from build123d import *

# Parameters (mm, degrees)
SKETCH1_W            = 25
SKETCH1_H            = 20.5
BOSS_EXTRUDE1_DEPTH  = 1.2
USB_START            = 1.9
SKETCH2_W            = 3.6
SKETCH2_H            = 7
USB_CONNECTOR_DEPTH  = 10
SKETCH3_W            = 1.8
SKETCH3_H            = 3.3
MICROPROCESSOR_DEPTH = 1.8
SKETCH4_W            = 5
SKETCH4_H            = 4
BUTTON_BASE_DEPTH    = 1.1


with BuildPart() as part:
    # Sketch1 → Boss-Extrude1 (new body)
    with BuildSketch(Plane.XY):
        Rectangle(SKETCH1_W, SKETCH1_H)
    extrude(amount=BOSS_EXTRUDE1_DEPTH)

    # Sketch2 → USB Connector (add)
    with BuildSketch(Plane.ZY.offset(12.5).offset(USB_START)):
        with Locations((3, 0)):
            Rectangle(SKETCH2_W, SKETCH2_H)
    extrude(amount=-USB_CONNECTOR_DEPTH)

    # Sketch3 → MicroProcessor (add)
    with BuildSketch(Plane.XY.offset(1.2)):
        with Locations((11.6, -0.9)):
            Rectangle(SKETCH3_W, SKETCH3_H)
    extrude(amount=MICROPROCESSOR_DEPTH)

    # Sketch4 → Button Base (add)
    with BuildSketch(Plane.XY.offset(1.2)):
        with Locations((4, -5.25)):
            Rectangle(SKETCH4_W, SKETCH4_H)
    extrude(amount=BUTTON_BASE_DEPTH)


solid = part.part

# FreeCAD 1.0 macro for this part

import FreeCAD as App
import Part
import Sketcher

V = App.Vector


def add_polygon(sketch, points):
    """Adds a closed chain of lines whose ends are joined by coincident constraints."""
    first, n = sketch.GeometryCount, len(points)
    for a, b in zip(points, points[1:] + points[:1]):
        sketch.addGeometry(Part.LineSegment(App.Vector(*a, 0), App.Vector(*b, 0)), False)
    for i in range(n):
        sketch.addConstraint(Sketcher.Constraint("Coincident", first + i, 2, first + (i + 1) % n, 1))

doc = App.newDocument("Part")
body = doc.addObject("PartDesign::Body", "Body")

# Sketch on XY plane
sketch1 = doc.addObject("Sketcher::SketchObject", "Sketch")
body.addObject(sketch1)
sketch1.AttachmentSupport = (doc.XY_Plane, [""])
sketch1.MapMode = "FlatFace"
add_polygon(sketch1, [(-12, 10), (-12, -10), (12, -10), (12, 10)])  # lines 0-3
sketch1.addConstraint(Sketcher.Constraint("Vertical", 0))
sketch1.addConstraint(Sketcher.Constraint("Horizontal", 1))
sketch1.addConstraint(Sketcher.Constraint("Vertical", 2))
sketch1.addConstraint(Sketcher.Constraint("Horizontal", 3))
sketch1.addConstraint(Sketcher.Constraint("Symmetric", 0, 2, 2, 2, -1, 1))
sketch1.addConstraint(Sketcher.Constraint("DistanceX", 1, 1, 1, 2, 25.0))
sketch1.addConstraint(Sketcher.Constraint("DistanceY", 0, 2, 0, 1, 20.5))
pad1 = doc.addObject("PartDesign::Pad", "Pad")
body.addObject(pad1)
pad1.Profile = sketch1
pad1.Length = 1.2

# Sketch on YZ plane
sketch2 = doc.addObject("Sketcher::SketchObject", "Sketch001")
body.addObject(sketch2)
sketch2.AttachmentSupport = (doc.YZ_Plane, [""])
sketch2.MapMode = "FlatFace"
sketch2.AttachmentOffset = App.Placement(V(0, 0, -14.4), App.Rotation())
add_polygon(sketch2, [(3.5, 1.2), (-3.5, 1.2), (-3.5, 4.8), (3.5, 4.8)])  # lines 0-3
sketch2.addConstraint(Sketcher.Constraint("Horizontal", 0))
sketch2.addConstraint(Sketcher.Constraint("Vertical", 1))
sketch2.addConstraint(Sketcher.Constraint("Horizontal", 2))
sketch2.addConstraint(Sketcher.Constraint("Vertical", 3))
sketch2.addConstraint(Sketcher.Constraint("DistanceX", 0, 2, 0, 1, 7.0))
sketch2.addConstraint(Sketcher.Constraint("DistanceY", 1, 1, 1, 2, 3.6))
sketch2.addConstraint(Sketcher.Constraint("DistanceX", 0, 2, -1, 1, 3.5))
sketch2.addConstraint(Sketcher.Constraint("DistanceY", -1, 1, 0, 2, 1.2))
pad2 = doc.addObject("PartDesign::Pad", "Pad001")
body.addObject(pad2)
pad2.Profile = sketch2
pad2.Length = 10

# Sketch on XY plane
sketch3 = doc.addObject("Sketcher::SketchObject", "Sketch002")
body.addObject(sketch3)
sketch3.AttachmentSupport = (doc.XY_Plane, [""])
sketch3.MapMode = "FlatFace"
sketch3.AttachmentOffset = App.Placement(V(0, 0, 1.2), App.Rotation())
add_polygon(sketch3, [(10.7, 0.8), (10.7, -2.5), (12.5, -2.5), (12.5, 0.8)])  # lines 0-3
sketch3.addConstraint(Sketcher.Constraint("Vertical", 0))
sketch3.addConstraint(Sketcher.Constraint("Horizontal", 1))
sketch3.addConstraint(Sketcher.Constraint("Vertical", 2))
sketch3.addConstraint(Sketcher.Constraint("Horizontal", 3))
sketch3.addConstraint(Sketcher.Constraint("DistanceX", 1, 1, 1, 2, 1.8))
sketch3.addConstraint(Sketcher.Constraint("DistanceY", 0, 2, 0, 1, 3.3))
sketch3.addConstraint(Sketcher.Constraint("DistanceX", -1, 1, 0, 2, 10.7))
sketch3.addConstraint(Sketcher.Constraint("DistanceY", 0, 2, -1, 1, 2.55))
pad3 = doc.addObject("PartDesign::Pad", "Pad002")
body.addObject(pad3)
pad3.Profile = sketch3
pad3.Length = 1.8

# Sketch on XY plane
sketch4 = doc.addObject("Sketcher::SketchObject", "Sketch003")
body.addObject(sketch4)
sketch4.AttachmentSupport = (doc.XY_Plane, [""])
sketch4.MapMode = "FlatFace"
sketch4.AttachmentOffset = App.Placement(V(0, 0, 1.2), App.Rotation())
add_polygon(sketch4, [(1.5, -3.2), (1.5, -7.2), (6.5, -7.2), (6.5, -3.2)])  # lines 0-3
sketch4.addConstraint(Sketcher.Constraint("Vertical", 0))
sketch4.addConstraint(Sketcher.Constraint("Horizontal", 1))
sketch4.addConstraint(Sketcher.Constraint("Vertical", 2))
sketch4.addConstraint(Sketcher.Constraint("Horizontal", 3))
sketch4.addConstraint(Sketcher.Constraint("DistanceX", 1, 1, 1, 2, 5.0))
sketch4.addConstraint(Sketcher.Constraint("DistanceY", 0, 2, 0, 1, 4.0))
sketch4.addConstraint(Sketcher.Constraint("DistanceX", -1, 1, 0, 2, 1.5))
sketch4.addConstraint(Sketcher.Constraint("DistanceY", 0, 2, -1, 1, 7.25))
pad4 = doc.addObject("PartDesign::Pad", "Pad003")
body.addObject(pad4)
pad4.Profile = sketch4
pad4.Length = 1.1

doc.recompute()
